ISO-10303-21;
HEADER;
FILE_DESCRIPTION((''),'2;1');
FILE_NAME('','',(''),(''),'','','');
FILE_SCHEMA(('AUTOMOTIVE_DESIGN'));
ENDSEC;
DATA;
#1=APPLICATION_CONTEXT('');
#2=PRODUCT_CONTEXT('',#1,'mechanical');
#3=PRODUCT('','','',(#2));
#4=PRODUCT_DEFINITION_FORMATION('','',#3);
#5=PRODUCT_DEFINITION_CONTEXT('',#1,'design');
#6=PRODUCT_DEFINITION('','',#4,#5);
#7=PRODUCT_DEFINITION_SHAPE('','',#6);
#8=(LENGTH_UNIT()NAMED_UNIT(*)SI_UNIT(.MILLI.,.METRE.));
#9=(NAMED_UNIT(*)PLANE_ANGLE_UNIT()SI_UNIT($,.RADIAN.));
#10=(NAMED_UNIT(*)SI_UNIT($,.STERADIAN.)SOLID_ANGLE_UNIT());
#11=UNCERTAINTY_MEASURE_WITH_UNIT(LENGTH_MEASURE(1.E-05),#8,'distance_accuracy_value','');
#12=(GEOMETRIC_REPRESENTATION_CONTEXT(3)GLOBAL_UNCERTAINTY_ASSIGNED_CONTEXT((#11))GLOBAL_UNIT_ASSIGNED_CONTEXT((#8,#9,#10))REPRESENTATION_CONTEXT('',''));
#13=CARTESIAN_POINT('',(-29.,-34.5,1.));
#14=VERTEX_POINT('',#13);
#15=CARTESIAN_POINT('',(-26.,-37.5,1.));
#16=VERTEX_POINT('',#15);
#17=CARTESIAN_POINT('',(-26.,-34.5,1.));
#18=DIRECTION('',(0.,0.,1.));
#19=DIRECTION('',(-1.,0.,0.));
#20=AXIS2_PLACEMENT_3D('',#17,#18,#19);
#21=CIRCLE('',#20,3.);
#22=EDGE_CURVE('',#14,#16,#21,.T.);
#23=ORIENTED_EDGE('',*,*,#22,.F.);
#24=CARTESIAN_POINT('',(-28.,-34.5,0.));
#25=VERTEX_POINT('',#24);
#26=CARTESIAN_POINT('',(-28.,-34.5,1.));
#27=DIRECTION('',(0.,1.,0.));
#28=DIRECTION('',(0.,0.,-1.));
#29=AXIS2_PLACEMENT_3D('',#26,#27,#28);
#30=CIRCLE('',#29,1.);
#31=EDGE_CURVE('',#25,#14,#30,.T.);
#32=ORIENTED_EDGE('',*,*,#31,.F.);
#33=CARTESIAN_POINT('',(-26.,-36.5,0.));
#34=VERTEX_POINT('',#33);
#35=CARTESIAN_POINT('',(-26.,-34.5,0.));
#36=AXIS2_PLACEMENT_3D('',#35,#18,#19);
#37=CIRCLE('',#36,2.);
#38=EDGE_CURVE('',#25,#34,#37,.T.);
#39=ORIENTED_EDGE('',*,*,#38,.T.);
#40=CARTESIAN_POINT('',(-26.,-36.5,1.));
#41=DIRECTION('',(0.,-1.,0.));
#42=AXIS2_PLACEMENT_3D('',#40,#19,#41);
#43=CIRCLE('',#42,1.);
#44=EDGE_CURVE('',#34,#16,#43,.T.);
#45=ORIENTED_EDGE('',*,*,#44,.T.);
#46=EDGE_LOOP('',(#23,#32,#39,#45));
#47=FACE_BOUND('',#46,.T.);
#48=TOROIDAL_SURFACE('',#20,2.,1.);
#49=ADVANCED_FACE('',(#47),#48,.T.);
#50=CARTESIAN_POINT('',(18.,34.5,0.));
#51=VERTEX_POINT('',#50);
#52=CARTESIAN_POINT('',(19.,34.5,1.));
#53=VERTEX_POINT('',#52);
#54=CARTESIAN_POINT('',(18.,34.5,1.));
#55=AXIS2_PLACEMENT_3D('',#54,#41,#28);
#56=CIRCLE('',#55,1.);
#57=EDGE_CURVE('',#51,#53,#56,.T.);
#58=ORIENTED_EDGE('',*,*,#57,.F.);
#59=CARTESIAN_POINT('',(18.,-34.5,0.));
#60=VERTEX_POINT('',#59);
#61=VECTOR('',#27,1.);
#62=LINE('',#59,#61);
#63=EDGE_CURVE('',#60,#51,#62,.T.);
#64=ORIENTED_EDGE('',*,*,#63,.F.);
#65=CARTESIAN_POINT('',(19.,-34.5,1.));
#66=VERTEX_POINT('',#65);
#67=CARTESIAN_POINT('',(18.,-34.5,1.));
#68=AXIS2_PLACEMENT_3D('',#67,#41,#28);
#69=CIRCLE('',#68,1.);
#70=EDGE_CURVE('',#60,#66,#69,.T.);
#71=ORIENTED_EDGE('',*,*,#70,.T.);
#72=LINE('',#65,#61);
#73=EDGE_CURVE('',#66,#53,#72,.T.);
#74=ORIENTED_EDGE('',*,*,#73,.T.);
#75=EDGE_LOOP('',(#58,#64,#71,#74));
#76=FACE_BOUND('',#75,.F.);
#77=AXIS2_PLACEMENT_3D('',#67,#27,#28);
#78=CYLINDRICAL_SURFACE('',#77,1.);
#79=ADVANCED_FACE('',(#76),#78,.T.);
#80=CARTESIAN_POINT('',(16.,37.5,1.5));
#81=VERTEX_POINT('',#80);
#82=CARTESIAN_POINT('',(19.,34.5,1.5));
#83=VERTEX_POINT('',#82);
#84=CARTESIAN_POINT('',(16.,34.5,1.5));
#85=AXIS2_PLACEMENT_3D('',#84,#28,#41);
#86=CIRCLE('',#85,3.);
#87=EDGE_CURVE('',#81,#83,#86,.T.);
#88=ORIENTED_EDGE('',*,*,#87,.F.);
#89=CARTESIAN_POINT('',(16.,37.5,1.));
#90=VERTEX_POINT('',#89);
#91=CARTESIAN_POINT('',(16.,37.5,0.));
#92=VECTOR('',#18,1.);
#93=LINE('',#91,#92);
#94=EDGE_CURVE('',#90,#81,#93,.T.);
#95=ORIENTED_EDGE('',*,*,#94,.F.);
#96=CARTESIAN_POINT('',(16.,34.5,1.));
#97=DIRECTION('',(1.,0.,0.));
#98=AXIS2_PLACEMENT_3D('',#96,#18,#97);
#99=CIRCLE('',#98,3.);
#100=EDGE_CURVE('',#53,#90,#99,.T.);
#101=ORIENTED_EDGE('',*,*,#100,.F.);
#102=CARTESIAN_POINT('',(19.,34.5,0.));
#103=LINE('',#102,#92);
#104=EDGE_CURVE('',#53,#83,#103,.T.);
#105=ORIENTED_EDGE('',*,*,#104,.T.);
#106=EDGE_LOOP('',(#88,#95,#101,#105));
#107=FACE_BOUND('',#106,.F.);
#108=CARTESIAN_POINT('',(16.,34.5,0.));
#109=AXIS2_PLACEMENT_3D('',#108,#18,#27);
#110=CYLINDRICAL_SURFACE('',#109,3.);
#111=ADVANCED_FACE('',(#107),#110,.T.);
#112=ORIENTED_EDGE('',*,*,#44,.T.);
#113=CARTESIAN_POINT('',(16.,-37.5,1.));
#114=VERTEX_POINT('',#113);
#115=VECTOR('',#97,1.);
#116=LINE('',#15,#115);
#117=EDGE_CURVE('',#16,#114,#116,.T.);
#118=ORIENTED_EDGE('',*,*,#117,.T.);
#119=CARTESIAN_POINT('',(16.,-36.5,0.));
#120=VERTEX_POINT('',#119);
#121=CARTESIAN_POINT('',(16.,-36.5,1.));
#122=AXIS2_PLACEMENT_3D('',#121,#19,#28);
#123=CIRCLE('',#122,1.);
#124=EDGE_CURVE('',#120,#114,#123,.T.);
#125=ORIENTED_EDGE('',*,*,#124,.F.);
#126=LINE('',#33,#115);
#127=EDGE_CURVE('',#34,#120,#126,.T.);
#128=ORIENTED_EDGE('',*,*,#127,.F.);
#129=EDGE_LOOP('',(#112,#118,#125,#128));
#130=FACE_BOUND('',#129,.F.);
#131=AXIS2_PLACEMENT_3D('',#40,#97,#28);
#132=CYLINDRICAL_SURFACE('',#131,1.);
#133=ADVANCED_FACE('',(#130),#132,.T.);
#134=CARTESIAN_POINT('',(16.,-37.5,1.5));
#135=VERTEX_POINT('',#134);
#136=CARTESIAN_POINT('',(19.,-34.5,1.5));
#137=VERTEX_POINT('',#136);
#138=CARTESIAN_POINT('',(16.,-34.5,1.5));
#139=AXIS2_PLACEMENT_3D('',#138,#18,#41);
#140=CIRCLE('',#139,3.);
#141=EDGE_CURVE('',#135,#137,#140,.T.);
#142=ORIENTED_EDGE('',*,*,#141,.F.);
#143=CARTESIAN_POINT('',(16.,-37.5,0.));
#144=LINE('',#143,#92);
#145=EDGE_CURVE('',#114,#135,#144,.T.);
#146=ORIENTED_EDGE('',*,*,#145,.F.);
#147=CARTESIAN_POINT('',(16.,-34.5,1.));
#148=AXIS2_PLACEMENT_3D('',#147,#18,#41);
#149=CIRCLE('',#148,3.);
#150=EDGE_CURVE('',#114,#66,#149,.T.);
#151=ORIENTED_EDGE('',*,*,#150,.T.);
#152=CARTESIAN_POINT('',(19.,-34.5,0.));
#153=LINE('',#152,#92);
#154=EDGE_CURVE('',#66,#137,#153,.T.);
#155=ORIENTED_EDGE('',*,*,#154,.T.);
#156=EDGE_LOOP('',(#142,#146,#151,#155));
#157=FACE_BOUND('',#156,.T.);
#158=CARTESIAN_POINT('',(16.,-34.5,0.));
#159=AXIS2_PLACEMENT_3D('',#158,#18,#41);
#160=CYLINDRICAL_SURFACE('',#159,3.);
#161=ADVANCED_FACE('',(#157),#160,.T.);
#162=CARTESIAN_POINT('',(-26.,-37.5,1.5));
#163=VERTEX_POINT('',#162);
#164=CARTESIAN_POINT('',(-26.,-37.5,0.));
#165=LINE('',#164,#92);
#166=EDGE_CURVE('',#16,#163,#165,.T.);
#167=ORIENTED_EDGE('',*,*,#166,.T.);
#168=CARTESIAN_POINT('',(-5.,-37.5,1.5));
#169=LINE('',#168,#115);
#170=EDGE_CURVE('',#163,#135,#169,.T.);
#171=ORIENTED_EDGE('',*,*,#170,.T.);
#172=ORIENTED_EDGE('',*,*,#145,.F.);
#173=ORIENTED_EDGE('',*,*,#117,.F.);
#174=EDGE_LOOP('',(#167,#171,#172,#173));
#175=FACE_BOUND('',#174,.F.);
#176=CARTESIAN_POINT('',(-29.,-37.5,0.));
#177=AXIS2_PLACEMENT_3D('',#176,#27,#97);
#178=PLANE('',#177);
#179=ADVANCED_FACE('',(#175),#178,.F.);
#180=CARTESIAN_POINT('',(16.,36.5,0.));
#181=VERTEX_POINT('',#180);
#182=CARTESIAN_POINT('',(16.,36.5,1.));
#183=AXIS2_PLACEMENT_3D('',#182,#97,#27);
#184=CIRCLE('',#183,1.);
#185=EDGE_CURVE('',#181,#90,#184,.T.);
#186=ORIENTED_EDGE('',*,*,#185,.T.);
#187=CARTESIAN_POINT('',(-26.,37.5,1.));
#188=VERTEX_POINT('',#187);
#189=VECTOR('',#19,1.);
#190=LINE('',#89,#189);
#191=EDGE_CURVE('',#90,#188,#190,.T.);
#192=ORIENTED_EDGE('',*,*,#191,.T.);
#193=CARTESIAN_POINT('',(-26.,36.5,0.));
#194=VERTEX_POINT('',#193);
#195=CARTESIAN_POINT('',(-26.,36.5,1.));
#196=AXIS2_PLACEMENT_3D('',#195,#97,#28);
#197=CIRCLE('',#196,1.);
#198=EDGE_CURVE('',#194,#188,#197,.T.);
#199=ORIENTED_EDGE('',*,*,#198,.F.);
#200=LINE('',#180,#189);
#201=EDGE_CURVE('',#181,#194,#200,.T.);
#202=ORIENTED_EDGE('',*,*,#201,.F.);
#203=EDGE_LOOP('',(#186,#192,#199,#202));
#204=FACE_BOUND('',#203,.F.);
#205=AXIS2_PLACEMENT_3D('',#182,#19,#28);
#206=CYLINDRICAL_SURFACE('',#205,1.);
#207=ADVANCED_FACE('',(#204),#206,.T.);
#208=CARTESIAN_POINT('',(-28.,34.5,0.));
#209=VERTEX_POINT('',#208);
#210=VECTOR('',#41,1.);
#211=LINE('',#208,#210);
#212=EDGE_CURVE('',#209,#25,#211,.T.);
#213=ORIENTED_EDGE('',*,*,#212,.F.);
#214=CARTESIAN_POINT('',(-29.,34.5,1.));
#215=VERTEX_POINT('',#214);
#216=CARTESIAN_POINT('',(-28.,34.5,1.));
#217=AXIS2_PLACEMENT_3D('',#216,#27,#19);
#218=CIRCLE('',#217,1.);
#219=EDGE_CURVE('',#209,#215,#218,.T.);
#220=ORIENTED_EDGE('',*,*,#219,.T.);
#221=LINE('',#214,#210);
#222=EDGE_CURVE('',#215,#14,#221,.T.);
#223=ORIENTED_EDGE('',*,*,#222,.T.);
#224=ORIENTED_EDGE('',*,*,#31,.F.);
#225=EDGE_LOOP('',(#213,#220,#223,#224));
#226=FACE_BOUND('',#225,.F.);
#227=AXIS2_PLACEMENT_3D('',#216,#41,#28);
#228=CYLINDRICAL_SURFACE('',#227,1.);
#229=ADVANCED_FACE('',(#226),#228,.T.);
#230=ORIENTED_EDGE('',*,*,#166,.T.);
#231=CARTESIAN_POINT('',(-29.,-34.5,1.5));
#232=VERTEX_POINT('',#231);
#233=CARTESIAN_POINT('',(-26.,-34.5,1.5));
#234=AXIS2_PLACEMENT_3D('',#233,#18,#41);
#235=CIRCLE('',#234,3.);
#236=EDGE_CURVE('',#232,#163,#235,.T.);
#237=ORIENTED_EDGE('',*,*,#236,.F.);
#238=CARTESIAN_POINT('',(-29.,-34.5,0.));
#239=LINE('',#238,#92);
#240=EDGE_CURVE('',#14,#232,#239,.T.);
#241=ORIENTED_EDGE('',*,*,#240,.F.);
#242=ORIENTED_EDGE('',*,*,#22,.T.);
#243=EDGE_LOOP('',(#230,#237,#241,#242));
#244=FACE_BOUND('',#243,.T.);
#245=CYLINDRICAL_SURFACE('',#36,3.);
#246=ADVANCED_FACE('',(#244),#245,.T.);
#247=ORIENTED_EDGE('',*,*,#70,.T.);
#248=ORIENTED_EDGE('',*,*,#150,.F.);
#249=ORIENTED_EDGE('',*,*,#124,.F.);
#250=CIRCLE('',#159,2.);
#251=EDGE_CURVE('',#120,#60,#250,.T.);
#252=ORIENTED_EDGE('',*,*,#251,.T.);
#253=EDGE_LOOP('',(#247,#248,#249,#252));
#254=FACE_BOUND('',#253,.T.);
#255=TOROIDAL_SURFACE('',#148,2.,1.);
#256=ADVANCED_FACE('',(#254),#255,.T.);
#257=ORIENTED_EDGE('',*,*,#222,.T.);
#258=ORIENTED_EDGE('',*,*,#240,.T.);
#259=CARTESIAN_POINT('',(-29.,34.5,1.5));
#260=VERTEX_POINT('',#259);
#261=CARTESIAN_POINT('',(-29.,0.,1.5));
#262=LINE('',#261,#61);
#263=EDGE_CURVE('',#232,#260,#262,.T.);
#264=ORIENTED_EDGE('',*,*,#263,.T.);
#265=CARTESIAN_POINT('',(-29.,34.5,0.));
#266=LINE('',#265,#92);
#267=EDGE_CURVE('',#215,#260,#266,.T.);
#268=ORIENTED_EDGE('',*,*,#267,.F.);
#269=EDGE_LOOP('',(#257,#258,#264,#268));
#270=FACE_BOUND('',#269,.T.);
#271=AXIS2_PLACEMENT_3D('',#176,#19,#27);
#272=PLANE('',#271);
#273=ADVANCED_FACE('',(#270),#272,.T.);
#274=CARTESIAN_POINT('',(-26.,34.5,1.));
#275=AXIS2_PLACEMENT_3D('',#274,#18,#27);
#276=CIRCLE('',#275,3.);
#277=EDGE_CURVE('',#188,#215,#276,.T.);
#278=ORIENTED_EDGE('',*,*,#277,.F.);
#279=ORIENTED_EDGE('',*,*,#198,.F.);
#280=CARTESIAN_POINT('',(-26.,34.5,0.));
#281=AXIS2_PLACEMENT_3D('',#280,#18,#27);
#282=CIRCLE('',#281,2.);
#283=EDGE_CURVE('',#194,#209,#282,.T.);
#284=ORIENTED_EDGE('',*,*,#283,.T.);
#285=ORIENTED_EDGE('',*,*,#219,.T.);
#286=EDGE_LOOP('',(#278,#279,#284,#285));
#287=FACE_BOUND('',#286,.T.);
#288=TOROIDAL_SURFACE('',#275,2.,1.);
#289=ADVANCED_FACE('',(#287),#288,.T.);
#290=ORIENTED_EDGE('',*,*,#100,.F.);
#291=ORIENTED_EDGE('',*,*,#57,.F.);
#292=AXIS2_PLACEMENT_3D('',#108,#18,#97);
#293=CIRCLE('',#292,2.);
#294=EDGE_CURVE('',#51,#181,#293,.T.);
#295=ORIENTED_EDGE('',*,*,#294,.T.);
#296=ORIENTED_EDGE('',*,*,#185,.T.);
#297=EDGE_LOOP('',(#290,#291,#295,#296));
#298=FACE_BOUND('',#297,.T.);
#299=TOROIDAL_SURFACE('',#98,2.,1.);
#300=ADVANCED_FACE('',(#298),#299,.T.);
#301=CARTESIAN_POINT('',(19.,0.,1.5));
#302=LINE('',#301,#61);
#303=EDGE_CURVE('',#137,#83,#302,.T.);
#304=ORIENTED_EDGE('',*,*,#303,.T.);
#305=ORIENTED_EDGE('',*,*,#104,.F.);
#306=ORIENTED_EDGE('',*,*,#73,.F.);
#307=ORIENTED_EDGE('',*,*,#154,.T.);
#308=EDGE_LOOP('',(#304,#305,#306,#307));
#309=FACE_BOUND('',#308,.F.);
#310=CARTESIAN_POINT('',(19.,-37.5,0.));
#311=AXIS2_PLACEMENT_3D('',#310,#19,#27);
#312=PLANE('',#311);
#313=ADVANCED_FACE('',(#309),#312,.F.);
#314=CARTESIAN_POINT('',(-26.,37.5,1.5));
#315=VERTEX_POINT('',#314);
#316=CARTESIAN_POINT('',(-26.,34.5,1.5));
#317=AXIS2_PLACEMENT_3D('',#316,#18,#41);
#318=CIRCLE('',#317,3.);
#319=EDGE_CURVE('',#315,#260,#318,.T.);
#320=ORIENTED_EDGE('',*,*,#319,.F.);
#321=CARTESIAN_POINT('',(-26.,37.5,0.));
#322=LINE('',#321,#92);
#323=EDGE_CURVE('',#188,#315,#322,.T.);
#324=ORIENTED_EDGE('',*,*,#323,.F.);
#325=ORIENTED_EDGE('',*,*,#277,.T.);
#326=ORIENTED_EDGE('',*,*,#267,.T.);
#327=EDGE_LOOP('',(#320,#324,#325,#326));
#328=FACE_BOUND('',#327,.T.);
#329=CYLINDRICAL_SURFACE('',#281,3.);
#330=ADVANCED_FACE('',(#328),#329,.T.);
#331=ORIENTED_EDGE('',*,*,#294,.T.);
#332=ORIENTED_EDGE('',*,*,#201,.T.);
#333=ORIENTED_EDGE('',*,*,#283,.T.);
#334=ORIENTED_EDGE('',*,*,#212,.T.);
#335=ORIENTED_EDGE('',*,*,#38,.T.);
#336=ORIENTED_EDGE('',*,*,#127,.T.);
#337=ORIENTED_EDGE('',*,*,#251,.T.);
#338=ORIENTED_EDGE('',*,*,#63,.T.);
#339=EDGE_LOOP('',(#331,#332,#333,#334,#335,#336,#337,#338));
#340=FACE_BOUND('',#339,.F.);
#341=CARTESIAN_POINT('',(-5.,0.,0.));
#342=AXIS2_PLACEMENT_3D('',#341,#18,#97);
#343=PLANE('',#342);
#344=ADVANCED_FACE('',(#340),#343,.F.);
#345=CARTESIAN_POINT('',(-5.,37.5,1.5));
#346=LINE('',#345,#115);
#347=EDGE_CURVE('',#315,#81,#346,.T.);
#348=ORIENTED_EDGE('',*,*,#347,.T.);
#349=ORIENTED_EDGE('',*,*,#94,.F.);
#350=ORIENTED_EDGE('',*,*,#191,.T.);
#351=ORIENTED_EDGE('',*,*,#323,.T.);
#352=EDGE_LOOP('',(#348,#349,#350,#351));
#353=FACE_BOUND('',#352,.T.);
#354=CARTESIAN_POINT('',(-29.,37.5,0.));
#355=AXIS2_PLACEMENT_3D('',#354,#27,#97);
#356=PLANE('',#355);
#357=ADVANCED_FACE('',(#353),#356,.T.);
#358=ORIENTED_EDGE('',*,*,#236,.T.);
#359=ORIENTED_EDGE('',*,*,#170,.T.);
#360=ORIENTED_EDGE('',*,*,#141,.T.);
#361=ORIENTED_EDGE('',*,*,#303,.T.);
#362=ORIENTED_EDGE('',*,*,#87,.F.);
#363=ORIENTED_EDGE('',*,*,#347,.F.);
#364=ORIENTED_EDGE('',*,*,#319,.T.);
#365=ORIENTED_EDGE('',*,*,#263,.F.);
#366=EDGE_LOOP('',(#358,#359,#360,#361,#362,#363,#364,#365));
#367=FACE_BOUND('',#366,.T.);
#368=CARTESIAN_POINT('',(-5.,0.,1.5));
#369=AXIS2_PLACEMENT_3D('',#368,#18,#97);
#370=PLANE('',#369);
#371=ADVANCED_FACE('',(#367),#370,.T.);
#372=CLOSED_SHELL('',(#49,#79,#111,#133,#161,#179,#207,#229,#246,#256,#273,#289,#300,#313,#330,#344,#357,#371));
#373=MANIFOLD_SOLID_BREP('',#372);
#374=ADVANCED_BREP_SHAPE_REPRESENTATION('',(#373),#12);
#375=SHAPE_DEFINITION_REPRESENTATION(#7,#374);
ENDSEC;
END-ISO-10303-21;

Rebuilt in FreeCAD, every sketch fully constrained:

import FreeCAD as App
import Part
import Sketcher


def edges_at(feature, points):
    """Names of the edges that pass closest to the given points."""
    edges = feature.Shape.Edges
    near = lambda p: min(range(len(edges)), key=lambda i: edges[i].distToShape(Part.Vertex(*p))[0])
    return sorted({f"Edge{near(p) + 1}" for p in points})

doc = App.newDocument("Part")
body = doc.addObject("PartDesign::Body", "Body")

# Sketch on XY plane
sketch1 = doc.addObject("Sketcher::SketchObject", "Sketch")
body.addObject(sketch1)
sketch1.AttachmentSupport = (doc.XY_Plane, [""])
sketch1.MapMode = "FlatFace"
sketch1.addGeometry([
    Part.LineSegment(App.Vector(-29, 38, 0), App.Vector(-29, -38, 0)),
    Part.LineSegment(App.Vector(-29, -38, 0), App.Vector(19, -38, 0)),
    Part.LineSegment(App.Vector(19, -38, 0), App.Vector(19, 38, 0)),
    Part.LineSegment(App.Vector(19, 38, 0), App.Vector(-29, 38, 0)),
], False)
sketch1.addConstraint([
    Sketcher.Constraint("Coincident", 0, 2, 1, 1),
    Sketcher.Constraint("Coincident", 1, 2, 2, 1),
    Sketcher.Constraint("Coincident", 2, 2, 3, 1),
    Sketcher.Constraint("Coincident", 3, 2, 0, 1),
    Sketcher.Constraint("Vertical", 0),
    Sketcher.Constraint("Horizontal", 1),
    Sketcher.Constraint("Vertical", 2),
    Sketcher.Constraint("Horizontal", 3),
    Sketcher.Constraint("DistanceX", 1, 1, 1, 2, 48.0),
    Sketcher.Constraint("DistanceY", 0, 2, 0, 1, 75.0),
    Sketcher.Constraint("DistanceX", 0, 2, -1, 1, 29.0),
    Sketcher.Constraint("DistanceY", 0, 2, -1, 1, 37.5),
])
pad1 = doc.addObject("PartDesign::Pad", "Pad")
body.addObject(pad1)
pad1.Profile = sketch1
pad1.Length = 1.5
doc.recompute()

fillet = doc.addObject("PartDesign::Fillet", "Fillet")
body.addObject(fillet)
fillet.Base = (pad1, edges_at(pad1, [(-29, -37.5, 0.75)]))
fillet.Radius = 3
doc.recompute()

fillet2 = doc.addObject("PartDesign::Fillet", "Fillet001")
body.addObject(fillet2)
fillet2.Base = (fillet, edges_at(fillet, [(19, -37.5, 0.75), (19, 37.5, 0.75)]))
fillet2.Radius = 3
doc.recompute()

fillet3 = doc.addObject("PartDesign::Fillet", "Fillet002")
body.addObject(fillet3)
fillet3.Base = (fillet2, edges_at(fillet2, [(-29, 37.5, 0.75)]))
fillet3.Radius = 3
doc.recompute()

fillet4 = doc.addObject("PartDesign::Fillet", "Fillet003")
body.addObject(fillet4)
fillet4.Base = (fillet3, edges_at(fillet3, [
    (19, 0, 0),
    (18.121, -36.621, 0),
    (-5, -37.5, 0),
    (-28.121, -36.621, 0),
    (-29, 0, 0),
    (-28.121, 36.621, 0),
    (-5, 37.5, 0),
    (18.121, 36.621, 0),
]))
fillet4.Radius = 1

doc.recompute()
